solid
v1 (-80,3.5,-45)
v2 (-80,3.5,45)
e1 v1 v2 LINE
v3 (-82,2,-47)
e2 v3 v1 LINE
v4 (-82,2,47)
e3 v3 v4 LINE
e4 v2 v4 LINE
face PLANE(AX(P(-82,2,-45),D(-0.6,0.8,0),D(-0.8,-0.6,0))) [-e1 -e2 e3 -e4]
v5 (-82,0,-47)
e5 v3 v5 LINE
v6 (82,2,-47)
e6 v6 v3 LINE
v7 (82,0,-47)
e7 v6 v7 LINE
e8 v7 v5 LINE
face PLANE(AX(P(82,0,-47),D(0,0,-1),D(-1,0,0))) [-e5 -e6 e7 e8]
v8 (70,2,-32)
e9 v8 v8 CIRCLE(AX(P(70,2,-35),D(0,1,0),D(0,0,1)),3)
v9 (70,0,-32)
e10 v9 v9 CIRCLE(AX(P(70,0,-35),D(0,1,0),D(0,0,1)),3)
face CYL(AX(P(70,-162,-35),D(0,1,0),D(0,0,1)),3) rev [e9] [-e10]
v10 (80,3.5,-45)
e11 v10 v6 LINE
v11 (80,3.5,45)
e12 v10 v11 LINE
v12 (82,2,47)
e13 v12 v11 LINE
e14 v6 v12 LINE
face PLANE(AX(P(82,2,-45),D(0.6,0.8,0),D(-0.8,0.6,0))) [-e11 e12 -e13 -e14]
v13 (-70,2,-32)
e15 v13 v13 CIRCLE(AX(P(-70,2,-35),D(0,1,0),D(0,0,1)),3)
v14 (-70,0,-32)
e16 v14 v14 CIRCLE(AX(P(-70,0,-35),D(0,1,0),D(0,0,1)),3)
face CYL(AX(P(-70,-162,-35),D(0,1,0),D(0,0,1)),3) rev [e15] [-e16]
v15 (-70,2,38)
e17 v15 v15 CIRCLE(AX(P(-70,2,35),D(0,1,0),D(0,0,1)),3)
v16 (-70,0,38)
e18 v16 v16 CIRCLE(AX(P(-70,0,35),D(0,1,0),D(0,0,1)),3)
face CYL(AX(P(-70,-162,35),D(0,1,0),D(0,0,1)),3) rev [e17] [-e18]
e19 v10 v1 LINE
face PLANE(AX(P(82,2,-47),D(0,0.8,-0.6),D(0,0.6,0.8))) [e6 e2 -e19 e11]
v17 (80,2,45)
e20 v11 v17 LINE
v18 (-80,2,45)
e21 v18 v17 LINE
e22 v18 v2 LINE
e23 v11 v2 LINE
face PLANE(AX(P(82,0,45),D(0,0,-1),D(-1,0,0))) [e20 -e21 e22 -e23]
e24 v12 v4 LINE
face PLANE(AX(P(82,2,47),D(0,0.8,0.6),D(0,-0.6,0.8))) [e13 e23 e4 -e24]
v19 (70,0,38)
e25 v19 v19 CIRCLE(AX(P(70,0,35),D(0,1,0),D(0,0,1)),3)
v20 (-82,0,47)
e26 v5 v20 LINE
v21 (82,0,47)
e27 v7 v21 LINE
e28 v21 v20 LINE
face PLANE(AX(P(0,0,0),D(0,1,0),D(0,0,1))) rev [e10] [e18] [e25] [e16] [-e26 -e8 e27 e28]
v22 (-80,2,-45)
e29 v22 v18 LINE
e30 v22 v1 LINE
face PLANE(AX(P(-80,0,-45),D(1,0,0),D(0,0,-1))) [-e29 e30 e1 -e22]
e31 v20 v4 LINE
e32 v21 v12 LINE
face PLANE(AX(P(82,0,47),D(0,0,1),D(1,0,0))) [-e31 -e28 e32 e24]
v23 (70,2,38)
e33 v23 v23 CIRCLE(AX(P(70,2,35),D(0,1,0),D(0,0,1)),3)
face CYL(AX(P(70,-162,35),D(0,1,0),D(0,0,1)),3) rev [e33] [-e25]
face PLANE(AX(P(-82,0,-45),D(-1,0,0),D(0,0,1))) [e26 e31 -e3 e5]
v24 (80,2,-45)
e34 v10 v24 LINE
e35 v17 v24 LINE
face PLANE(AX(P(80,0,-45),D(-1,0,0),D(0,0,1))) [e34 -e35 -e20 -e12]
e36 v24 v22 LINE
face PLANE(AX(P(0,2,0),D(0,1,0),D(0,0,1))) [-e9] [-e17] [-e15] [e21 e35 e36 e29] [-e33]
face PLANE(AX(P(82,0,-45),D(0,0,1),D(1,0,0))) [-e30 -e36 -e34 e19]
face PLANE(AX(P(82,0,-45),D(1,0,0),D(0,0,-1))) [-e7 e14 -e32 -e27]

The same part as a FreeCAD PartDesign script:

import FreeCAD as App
import Part
import Sketcher
Q = App.Units.Quantity


def add_polygon(sketch, points):
    """Adds a closed chain of lines whose ends are joined by coincident constraints."""
    first, n = sketch.GeometryCount, len(points)
    for a, b in zip(points, points[1:] + points[:1]):
        sketch.addGeometry(Part.LineSegment(App.Vector(*a, 0), App.Vector(*b, 0)), False)
    for i in range(n):
        sketch.addConstraint(Sketcher.Constraint("Coincident", first + i, 2, first + (i + 1) % n, 1))

doc = App.newDocument("Part")
body = doc.addObject("PartDesign::Body", "Body")

sketch1 = doc.addObject("Sketcher::SketchObject", "Sketch")
body.addObject(sketch1)
sketch1.AttachmentSupport = (doc.XZ_Plane, [""])
sketch1.MapMode = "FlatFace"
add_polygon(sketch1, [(-80, -45), (-80, 45), (80, 45), (80, -45)])
sketch1.addConstraint(Sketcher.Constraint("Vertical", 0))
sketch1.addConstraint(Sketcher.Constraint("Horizontal", 1))
sketch1.addConstraint(Sketcher.Constraint("Vertical", 2))
sketch1.addConstraint(Sketcher.Constraint("Horizontal", 3))
sketch1.addConstraint(Sketcher.Constraint("Symmetric", 0, 2, 2, 2, -1, 1))
sketch1.addConstraint(Sketcher.Constraint("DistanceX", 1, 1, 1, 2, Q("160 mm")))
sketch1.addConstraint(Sketcher.Constraint("DistanceY", 0, 1, 0, 2, Q("90 mm")))
pad1 = doc.addObject("PartDesign::Pad", "Pad")
body.addObject(pad1)
pad1.Profile = sketch1
pad1.Length = 2
pad1.Reversed = True

sketch2 = doc.addObject("Sketcher::SketchObject", "Sketch001")
body.addObject(sketch2)
sketch2.AttachmentSupport = (doc.XY_Plane, [""])
sketch2.MapMode = "FlatFace"
sketch2.AttachmentOffset = App.Placement(App.Vector(0, 0, 45), App.Rotation())
add_polygon(sketch2, [(-82, 0), (-80, 0), (-80, 3.5), (-82, 2)])
add_polygon(sketch2, [(80, 0), (82, 0), (82, 2), (80, 3.5)])
sketch2.addConstraint(Sketcher.Constraint("Horizontal", 0))
sketch2.addConstraint(Sketcher.Constraint("Vertical", 1))
sketch2.addConstraint(Sketcher.Constraint("Vertical", 3))
sketch2.addConstraint(Sketcher.Constraint("Horizontal", 4))
sketch2.addConstraint(Sketcher.Constraint("Vertical", 5))
sketch2.addConstraint(Sketcher.Constraint("Vertical", 7))
sketch2.addConstraint(Sketcher.Constraint("Symmetric", 3, 2, 4, 2, -1, 1))
sketch2.addConstraint(Sketcher.Constraint("Symmetric", 1, 2, 6, 2, -2))
sketch2.addConstraint(Sketcher.Constraint("PointOnObject", 0, 2, -1))
sketch2.addConstraint(Sketcher.Constraint("Horizontal", 2, 2, 5, 2))
sketch2.addConstraint(Sketcher.Constraint("Equal", 4, 3))
sketch2.addConstraint(Sketcher.Constraint("DistanceX", 0, 1, 0, 2, Q("2 mm")))
sketch2.addConstraint(Sketcher.Constraint("DistanceY", 1, 1, 1, 2, Q("3.5 mm")))
sketch2.addConstraint(Sketcher.Constraint("DistanceX", 0, 2, -1, 1, Q("80 mm")))
pad2 = doc.addObject("PartDesign::Pad", "Pad001")
body.addObject(pad2)
pad2.Profile = sketch2
pad2.Length = 90
pad2.Reversed = True

sketch3 = doc.addObject("Sketcher::SketchObject", "Sketch002")
body.addObject(sketch3)
sketch3.AttachmentSupport = (doc.YZ_Plane, [""])
sketch3.MapMode = "FlatFace"
sketch3.AttachmentOffset = App.Placement(App.Vector(0, 0, -82), App.Rotation())
add_polygon(sketch3, [(0, -47), (0, -45), (3.5, -45), (2, -47)])
add_polygon(sketch3, [(3.5, 45), (0, 45), (0, 47), (2, 47)])
sketch3.addConstraint(Sketcher.Constraint("Vertical", 0))
sketch3.addConstraint(Sketcher.Constraint("Horizontal", 1))
sketch3.addConstraint(Sketcher.Constraint("Horizontal", 3))
sketch3.addConstraint(Sketcher.Constraint("Horizontal", 4))
sketch3.addConstraint(Sketcher.Constraint("Vertical", 5))
sketch3.addConstraint(Sketcher.Constraint("Horizontal", 6))
sketch3.addConstraint(Sketcher.Constraint("Symmetric", 0, 2, 4, 2, -1, 1))
sketch3.addConstraint(Sketcher.Constraint("Symmetric", 3, 2, 5, 2, -1))
sketch3.addConstraint(Sketcher.Constraint("Vertical", 2, 2, 6, 2))
sketch3.addConstraint(Sketcher.Constraint("Vertical", 1, 2, 7, 2))
sketch3.addConstraint(Sketcher.Constraint("Equal", 6, 0))
sketch3.addConstraint(Sketcher.Constraint("DistanceX", 3, 2, 3, 1, Q("2 mm")))
sketch3.addConstraint(Sketcher.Constraint("DistanceX", 1, 1, 1, 2, Q("3.5 mm")))
sketch3.addConstraint(Sketcher.Constraint("DistanceY", 0, 2, -1, 1, Q("45 mm")))
pad3 = doc.addObject("PartDesign::Pad", "Pad002")
body.addObject(pad3)
pad3.Profile = sketch3
pad3.Length = 164

sketch4 = doc.addObject("Sketcher::SketchObject", "Sketch003")
body.addObject(sketch4)
sketch4.AttachmentSupport = (doc.XY_Plane, [""])
sketch4.MapMode = "FlatFace"
sketch4.AttachmentOffset = App.Placement(App.Vector(0, 0, -45), App.Rotation())
add_polygon(sketch4, [(-82, 2), (-80, 3.5), (-82, 3.5)])
add_polygon(sketch4, [(82, 3.5), (80, 3.5), (82, 2)])
sketch4.addConstraint(Sketcher.Constraint("Horizontal", 1))
sketch4.addConstraint(Sketcher.Constraint("Vertical", 2))
sketch4.addConstraint(Sketcher.Constraint("Horizontal", 3))
sketch4.addConstraint(Sketcher.Constraint("Vertical", 5))
sketch4.addConstraint(Sketcher.Constraint("Symmetric", 0, 2, 3, 2, -2))
sketch4.addConstraint(Sketcher.Constraint("Symmetric", 2, 2, 4, 2, -2))
sketch4.addConstraint(Sketcher.Constraint("DistanceX", 1, 2, 1, 1, Q("2 mm")))
sketch4.addConstraint(Sketcher.Constraint("DistanceY", 2, 2, 2, 1, Q("1.5 mm")))
sketch4.addConstraint(Sketcher.Constraint("DistanceX", 0, 2, -1, 1, Q("80 mm")))
sketch4.addConstraint(Sketcher.Constraint("DistanceY", -1, 1, 2, 2, Q("2 mm")))
pocket1 = doc.addObject("PartDesign::Pocket", "Pocket")
body.addObject(pocket1)
pocket1.Profile = sketch4
pocket1.Type = "ThroughAll"
pocket1.Midplane = True

sketch5 = doc.addObject("Sketcher::SketchObject", "Sketch004")
body.addObject(sketch5)
sketch5.AttachmentSupport = (doc.XZ_Plane, [""])
sketch5.MapMode = "FlatFace"
sketch5.AttachmentOffset = App.Placement(App.Vector(0, 0, -2), App.Rotation())
sketch5.addGeometry(Part.Circle(App.Vector(-70, -35, 0), App.Vector(0, 0, 1), 3), False)
sketch5.addGeometry(Part.Circle(App.Vector(70, -35, 0), App.Vector(0, 0, 1), 3), False)
sketch5.addGeometry(Part.Circle(App.Vector(70, 35, 0), App.Vector(0, 0, 1), 3), False)
sketch5.addGeometry(Part.Circle(App.Vector(-70, 35, 0), App.Vector(0, 0, 1), 3), False)
sketch5.addConstraint(Sketcher.Constraint("Equal", 0, 1))
sketch5.addConstraint(Sketcher.Constraint("Equal", 1, 2))
sketch5.addConstraint(Sketcher.Constraint("Equal", 2, 3))
sketch5.addConstraint(Sketcher.Constraint("Symmetric", 0, 3, 2, 3, -1, 1))
sketch5.addConstraint(Sketcher.Constraint("Symmetric", 1, 3, 3, 3, -1, 1))
sketch5.addConstraint(Sketcher.Constraint("Symmetric", 0, 3, 1, 3, -2))
sketch5.addConstraint(Sketcher.Constraint("Diameter", 0, Q("6 mm")))
sketch5.addConstraint(Sketcher.Constraint("DistanceX", 0, 3, -1, 1, Q("70 mm")))
sketch5.addConstraint(Sketcher.Constraint("DistanceY", 0, 3, -1, 1, Q("35 mm")))
pocket2 = doc.addObject("PartDesign::Pocket", "Pocket001")
body.addObject(pocket2)
pocket2.Profile = sketch5
pocket2.Length = 164
pocket2.Reversed = True

doc.recompute()
